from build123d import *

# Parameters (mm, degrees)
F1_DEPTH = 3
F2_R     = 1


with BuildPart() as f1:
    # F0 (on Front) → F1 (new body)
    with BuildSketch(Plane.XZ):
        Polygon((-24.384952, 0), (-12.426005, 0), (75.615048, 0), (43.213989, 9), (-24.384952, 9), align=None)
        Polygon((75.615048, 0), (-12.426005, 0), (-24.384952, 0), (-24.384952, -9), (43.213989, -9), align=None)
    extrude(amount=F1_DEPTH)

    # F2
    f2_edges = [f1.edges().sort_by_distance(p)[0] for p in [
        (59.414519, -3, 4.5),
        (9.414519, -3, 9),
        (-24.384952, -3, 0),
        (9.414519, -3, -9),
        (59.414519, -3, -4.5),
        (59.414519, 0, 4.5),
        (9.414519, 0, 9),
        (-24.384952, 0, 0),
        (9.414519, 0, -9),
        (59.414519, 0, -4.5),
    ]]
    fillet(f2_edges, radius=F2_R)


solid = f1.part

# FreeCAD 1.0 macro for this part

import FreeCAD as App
import Part
import Sketcher

V = App.Vector


def edges_at(feature, points):
    """Names of the edges that pass closest to the given points."""
    edges = feature.Shape.Edges
    near = lambda p: min(range(len(edges)), key=lambda i: edges[i].distToShape(Part.Vertex(*p))[0])
    return sorted({f"Edge{near(p) + 1}" for p in points})


def add_polygon(sketch, points):
    """Adds a closed chain of lines whose ends are joined by coincident constraints."""
    first, n = sketch.GeometryCount, len(points)
    for a, b in zip(points, points[1:] + points[:1]):
        sketch.addGeometry(Part.LineSegment(App.Vector(*a, 0), App.Vector(*b, 0)), False)
    for i in range(n):
        sketch.addConstraint(Sketcher.Constraint("Coincident", first + i, 2, first + (i + 1) % n, 1))

doc = App.newDocument("Part")
body = doc.addObject("PartDesign::Body", "Body")

# Sketch on XZ plane
sketch1 = body.newObject("Sketcher::SketchObject", "Sketch")
sketch1.AttachmentSupport = (doc.getObject("XZ_Plane"), [""])
sketch1.MapMode = "FlatFace"
add_polygon(sketch1, [(76, 0), (43, 9), (-24, 9), (-24, -9), (43, -9)])  # lines 0-4
sketch1.addConstraint([
    Sketcher.Constraint("Horizontal", 1),
    Sketcher.Constraint("Vertical", 2),
    Sketcher.Constraint("Horizontal", 3),
    Sketcher.Constraint("Symmetric", 0, 2, 3, 2, -1),
    Sketcher.Constraint("PointOnObject", 4, 2, -1),
    Sketcher.Constraint("DistanceY", 2, 2, 2, 1, 18.0),
    Sketcher.Constraint("DistanceX", 1, 2, 4, 2, 100.0),
    Sketcher.Constraint("DistanceX", 1, 2, 1, 1, 67.598941),
    Sketcher.Constraint("DistanceX", -1, 1, 0, 2, 43.213989),
])
pad1 = body.newObject("PartDesign::Pad", "Pad")
pad1.Profile = sketch1
pad1.Length = 3
doc.recompute()

fillet = body.newObject("PartDesign::Fillet", "Fillet")
fillet.Base = (pad1, edges_at(pad1, [
    (59.415, -3, 4.5),
    (9.415, -3, 9),
    (-24.385, -3, 0),
    (9.415, -3, -9),
    (59.415, -3, -4.5),
    (59.415, 0, 4.5),
    (9.415, 0, 9),
    (-24.385, 0, 0),
    (9.415, 0, -9),
    (59.415, 0, -4.5),
]))
fillet.Radius = 1

doc.recompute()
